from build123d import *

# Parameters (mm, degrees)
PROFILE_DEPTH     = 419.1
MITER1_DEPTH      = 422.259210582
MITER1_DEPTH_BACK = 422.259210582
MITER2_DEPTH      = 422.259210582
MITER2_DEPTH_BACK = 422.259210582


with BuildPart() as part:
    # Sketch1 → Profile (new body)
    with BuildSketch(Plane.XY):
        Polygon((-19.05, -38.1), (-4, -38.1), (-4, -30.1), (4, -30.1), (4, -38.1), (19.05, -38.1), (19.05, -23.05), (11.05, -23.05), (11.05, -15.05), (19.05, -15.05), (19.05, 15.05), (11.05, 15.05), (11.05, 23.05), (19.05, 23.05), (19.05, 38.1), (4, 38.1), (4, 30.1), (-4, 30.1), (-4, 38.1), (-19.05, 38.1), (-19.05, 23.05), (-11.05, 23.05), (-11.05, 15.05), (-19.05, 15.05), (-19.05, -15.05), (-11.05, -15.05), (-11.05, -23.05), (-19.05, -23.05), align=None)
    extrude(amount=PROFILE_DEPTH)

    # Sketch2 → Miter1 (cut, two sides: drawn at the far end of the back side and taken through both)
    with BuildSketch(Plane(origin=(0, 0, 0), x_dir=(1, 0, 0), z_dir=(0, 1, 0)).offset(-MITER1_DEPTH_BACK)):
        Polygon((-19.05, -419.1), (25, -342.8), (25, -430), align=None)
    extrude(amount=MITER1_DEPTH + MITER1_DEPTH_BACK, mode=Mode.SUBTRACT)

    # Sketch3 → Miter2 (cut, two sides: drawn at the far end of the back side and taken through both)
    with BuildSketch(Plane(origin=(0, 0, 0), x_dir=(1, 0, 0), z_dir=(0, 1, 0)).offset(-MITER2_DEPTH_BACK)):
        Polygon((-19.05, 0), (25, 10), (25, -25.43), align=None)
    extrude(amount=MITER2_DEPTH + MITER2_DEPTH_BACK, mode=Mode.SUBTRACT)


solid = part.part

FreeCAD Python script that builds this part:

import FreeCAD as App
import Part
import Sketcher
from FreeCAD import Vector

doc = App.newDocument("Part")
body = doc.addObject("PartDesign::Body", "Body")

# Sketch on XY plane
sketch1 = body.newObject("Sketcher::SketchObject", "Sketch")
sketch1.AttachmentSupport = (doc.getObject("XY_Plane"), [""])
sketch1.MapMode = "FlatFace"
sketch1.addGeometry([
    Part.LineSegment(Vector(-19.05, -38.1, 0), Vector(-4, -38.1, 0)),  # 0
    Part.LineSegment(Vector(-4, -38.1, 0), Vector(-4, -30.1, 0)),  # 1
    Part.LineSegment(Vector(-4, -30.1, 0), Vector(4, -30.1, 0)),  # 2
    Part.LineSegment(Vector(4, -30.1, 0), Vector(4, -38.1, 0)),  # 3
    Part.LineSegment(Vector(4, -38.1, 0), Vector(19.05, -38.1, 0)),  # 4
    Part.LineSegment(Vector(19.05, -38.1, 0), Vector(19.05, -23.05, 0)),  # 5
    Part.LineSegment(Vector(19.05, -23.05, 0), Vector(11.05, -23.05, 0)),  # 6
    Part.LineSegment(Vector(11.05, -23.05, 0), Vector(11.05, -15.05, 0)),  # 7
    Part.LineSegment(Vector(11.05, -15.05, 0), Vector(19.05, -15.05, 0)),  # 8
    Part.LineSegment(Vector(19.05, -15.05, 0), Vector(19.05, 15.05, 0)),  # 9
    Part.LineSegment(Vector(19.05, 15.05, 0), Vector(11.05, 15.05, 0)),  # 10
    Part.LineSegment(Vector(11.05, 15.05, 0), Vector(11.05, 23.05, 0)),  # 11
    Part.LineSegment(Vector(11.05, 23.05, 0), Vector(19.05, 23.05, 0)),  # 12
    Part.LineSegment(Vector(19.05, 23.05, 0), Vector(19.05, 38.1, 0)),  # 13
    Part.LineSegment(Vector(19.05, 38.1, 0), Vector(4, 38.1, 0)),  # 14
    Part.LineSegment(Vector(4, 38.1, 0), Vector(4, 30.1, 0)),  # 15
    Part.LineSegment(Vector(4, 30.1, 0), Vector(-4, 30.1, 0)),  # 16
    Part.LineSegment(Vector(-4, 30.1, 0), Vector(-4, 38.1, 0)),  # 17
    Part.LineSegment(Vector(-4, 38.1, 0), Vector(-19.05, 38.1, 0)),  # 18
    Part.LineSegment(Vector(-19.05, 38.1, 0), Vector(-19.05, 23.05, 0)),  # 19
    Part.LineSegment(Vector(-19.05, 23.05, 0), Vector(-11.05, 23.05, 0)),  # 20
    Part.LineSegment(Vector(-11.05, 23.05, 0), Vector(-11.05, 15.05, 0)),  # 21
    Part.LineSegment(Vector(-11.05, 15.05, 0), Vector(-19.05, 15.05, 0)),  # 22
    Part.LineSegment(Vector(-19.05, 15.05, 0), Vector(-19.05, -15.05, 0)),  # 23
    Part.LineSegment(Vector(-19.05, -15.05, 0), Vector(-11.05, -15.05, 0)),  # 24
    Part.LineSegment(Vector(-11.05, -15.05, 0), Vector(-11.05, -23.05, 0)),  # 25
    Part.LineSegment(Vector(-11.05, -23.05, 0), Vector(-19.05, -23.05, 0)),  # 26
    Part.LineSegment(Vector(-19.05, -23.05, 0), Vector(-19.05, -38.1, 0)),  # 27
], False)
sketch1.addConstraint([
    Sketcher.Constraint("Coincident", 0, 2, 1, 1),
    Sketcher.Constraint("Coincident", 1, 2, 2, 1),
    Sketcher.Constraint("Coincident", 2, 2, 3, 1),
    Sketcher.Constraint("Coincident", 3, 2, 4, 1),
    Sketcher.Constraint("Coincident", 4, 2, 5, 1),
    Sketcher.Constraint("Coincident", 5, 2, 6, 1),
    Sketcher.Constraint("Coincident", 6, 2, 7, 1),
    Sketcher.Constraint("Coincident", 7, 2, 8, 1),
    Sketcher.Constraint("Coincident", 8, 2, 9, 1),
    Sketcher.Constraint("Coincident", 9, 2, 10, 1),
    Sketcher.Constraint("Coincident", 10, 2, 11, 1),
    Sketcher.Constraint("Coincident", 11, 2, 12, 1),
    Sketcher.Constraint("Coincident", 12, 2, 13, 1),
    Sketcher.Constraint("Coincident", 13, 2, 14, 1),
    Sketcher.Constraint("Coincident", 14, 2, 15, 1),
    Sketcher.Constraint("Coincident", 15, 2, 16, 1),
    Sketcher.Constraint("Coincident", 16, 2, 17, 1),
    Sketcher.Constraint("Coincident", 17, 2, 18, 1),
    Sketcher.Constraint("Coincident", 18, 2, 19, 1),
    Sketcher.Constraint("Coincident", 19, 2, 20, 1),
    Sketcher.Constraint("Coincident", 20, 2, 21, 1),
    Sketcher.Constraint("Coincident", 21, 2, 22, 1),
    Sketcher.Constraint("Coincident", 22, 2, 23, 1),
    Sketcher.Constraint("Coincident", 23, 2, 24, 1),
    Sketcher.Constraint("Coincident", 24, 2, 25, 1),
    Sketcher.Constraint("Coincident", 25, 2, 26, 1),
    Sketcher.Constraint("Coincident", 26, 2, 27, 1),
    Sketcher.Constraint("Coincident", 27, 2, 0, 1),
    Sketcher.Constraint("Horizontal", 0),
    Sketcher.Constraint("Vertical", 1),
    Sketcher.Constraint("Horizontal", 2),
    Sketcher.Constraint("Vertical", 3),
    Sketcher.Constraint("Horizontal", 4),
    Sketcher.Constraint("Vertical", 5),
    Sketcher.Constraint("Horizontal", 6),
    Sketcher.Constraint("Vertical", 7),
    Sketcher.Constraint("Horizontal", 8),
    Sketcher.Constraint("Vertical", 9),
    Sketcher.Constraint("Horizontal", 10),
    Sketcher.Constraint("Vertical", 11),
    Sketcher.Constraint("Horizontal", 12),
    Sketcher.Constraint("Vertical", 13),
    Sketcher.Constraint("Horizontal", 14),
    Sketcher.Constraint("Vertical", 15),
    Sketcher.Constraint("Horizontal", 16),
    Sketcher.Constraint("Vertical", 17),
    Sketcher.Constraint("Horizontal", 18),
    Sketcher.Constraint("Vertical", 19),
    Sketcher.Constraint("Horizontal", 20),
    Sketcher.Constraint("Vertical", 21),
    Sketcher.Constraint("Horizontal", 22),
    Sketcher.Constraint("Vertical", 23),
    Sketcher.Constraint("Horizontal", 24),
    Sketcher.Constraint("Vertical", 25),
    Sketcher.Constraint("Horizontal", 26),
    Sketcher.Constraint("Vertical", 27),
    Sketcher.Constraint("Symmetric", 0, 2, 14, 2, -1, 1),
    Sketcher.Constraint("Symmetric", 2, 2, 16, 2, -1, 1),
    Sketcher.Constraint("Symmetric", 4, 2, 18, 2, -1, 1),
    Sketcher.Constraint("Symmetric", 6, 2, 20, 2, -1, 1),
    Sketcher.Constraint("Symmetric", 8, 2, 22, 2, -1, 1),
    Sketcher.Constraint("Symmetric", 10, 2, 24, 2, -1, 1),
    Sketcher.Constraint("Symmetric", 12, 2, 26, 2, -1, 1),
    Sketcher.Constraint("Symmetric", 0, 2, 3, 2, -2),
    Sketcher.Constraint("Symmetric", 12, 2, 19, 2, -2),
    Sketcher.Constraint("Symmetric", 10, 2, 21, 2, -2),
    Sketcher.Constraint("Vertical", 5, 2, 8, 2),
    Sketcher.Constraint("Equal", 2, 6),
    Sketcher.Constraint("Equal", 26, 1),
    Sketcher.Constraint("Equal", 18, 5),
    Sketcher.Constraint("Equal", 3, 7),
    Sketcher.Constraint("DistanceX", 2, 1, 2, 2, 8.0),
    Sketcher.Constraint("DistanceY", 9, 1, 9, 2, 30.1),
    Sketcher.Constraint("DistanceX", 0, 1, 0, 2, 15.05),
])
pad1 = body.newObject("PartDesign::Pad", "Pad")
pad1.Profile = sketch1
pad1.Length = 419.1

# Sketch on XZ plane
sketch2 = body.newObject("Sketcher::SketchObject", "Sketch001")
sketch2.AttachmentSupport = (doc.getObject("XZ_Plane"), [""])
sketch2.MapMode = "FlatFace"
sketch2.addGeometry([
    Part.LineSegment(Vector(25, 342.8, 0), Vector(-19.05, 419.1, 0)),
    Part.LineSegment(Vector(-19.05, 419.1, 0), Vector(25, 430, 0)),
    Part.LineSegment(Vector(25, 430, 0), Vector(25, 342.8, 0)),
], False)
sketch2.addConstraint([
    Sketcher.Constraint("Coincident", 0, 2, 1, 1),
    Sketcher.Constraint("Coincident", 1, 2, 2, 1),
    Sketcher.Constraint("Coincident", 2, 2, 0, 1),
    Sketcher.Constraint("Vertical", 2),
    Sketcher.Constraint("DistanceY", 2, 2, 2, 1, 87.2),
    Sketcher.Constraint("DistanceX", -1, 1, 1, 2, 25.0),
    Sketcher.Constraint("DistanceY", -1, 1, 1, 2, 430.0),
    Sketcher.Constraint("DistanceY", -1, 1, 0, 2, 419.1),
    Sketcher.Constraint("DistanceX", 0, 2, -1, 1, 19.05),
])
pocket1 = body.newObject("PartDesign::Pocket", "Pocket")
pocket1.Profile = sketch2
pocket1.Type = "ThroughAll"
pocket1.Midplane = True

# Sketch on XZ plane
sketch3 = body.newObject("Sketcher::SketchObject", "Sketch002")
sketch3.AttachmentSupport = (doc.getObject("XZ_Plane"), [""])
sketch3.MapMode = "FlatFace"
sketch3.addGeometry([
    Part.LineSegment(Vector(25, -10, 0), Vector(-19.05, 0, 0)),
    Part.LineSegment(Vector(-19.05, 0, 0), Vector(25, 25.43, 0)),
    Part.LineSegment(Vector(25, 25.43, 0), Vector(25, -10, 0)),
], False)
sketch3.addConstraint([
    Sketcher.Constraint("Coincident", 0, 2, 1, 1),
    Sketcher.Constraint("Coincident", 1, 2, 2, 1),
    Sketcher.Constraint("Coincident", 2, 2, 0, 1),
    Sketcher.Constraint("Vertical", 2),
    Sketcher.Constraint("PointOnObject", 0, 2, -1),
    Sketcher.Constraint("DistanceX", -1, 1, 1, 2, 25.0),
    Sketcher.Constraint("DistanceY", 2, 2, -1, 1, 10.0),
    Sketcher.Constraint("DistanceY", 2, 2, 2, 1, 35.43),
    Sketcher.Constraint("DistanceX", 0, 2, -1, 1, 19.05),
])
pocket2 = body.newObject("PartDesign::Pocket", "Pocket001")
pocket2.Profile = sketch3
pocket2.Type = "ThroughAll"
pocket2.Midplane = True

doc.recompute()
